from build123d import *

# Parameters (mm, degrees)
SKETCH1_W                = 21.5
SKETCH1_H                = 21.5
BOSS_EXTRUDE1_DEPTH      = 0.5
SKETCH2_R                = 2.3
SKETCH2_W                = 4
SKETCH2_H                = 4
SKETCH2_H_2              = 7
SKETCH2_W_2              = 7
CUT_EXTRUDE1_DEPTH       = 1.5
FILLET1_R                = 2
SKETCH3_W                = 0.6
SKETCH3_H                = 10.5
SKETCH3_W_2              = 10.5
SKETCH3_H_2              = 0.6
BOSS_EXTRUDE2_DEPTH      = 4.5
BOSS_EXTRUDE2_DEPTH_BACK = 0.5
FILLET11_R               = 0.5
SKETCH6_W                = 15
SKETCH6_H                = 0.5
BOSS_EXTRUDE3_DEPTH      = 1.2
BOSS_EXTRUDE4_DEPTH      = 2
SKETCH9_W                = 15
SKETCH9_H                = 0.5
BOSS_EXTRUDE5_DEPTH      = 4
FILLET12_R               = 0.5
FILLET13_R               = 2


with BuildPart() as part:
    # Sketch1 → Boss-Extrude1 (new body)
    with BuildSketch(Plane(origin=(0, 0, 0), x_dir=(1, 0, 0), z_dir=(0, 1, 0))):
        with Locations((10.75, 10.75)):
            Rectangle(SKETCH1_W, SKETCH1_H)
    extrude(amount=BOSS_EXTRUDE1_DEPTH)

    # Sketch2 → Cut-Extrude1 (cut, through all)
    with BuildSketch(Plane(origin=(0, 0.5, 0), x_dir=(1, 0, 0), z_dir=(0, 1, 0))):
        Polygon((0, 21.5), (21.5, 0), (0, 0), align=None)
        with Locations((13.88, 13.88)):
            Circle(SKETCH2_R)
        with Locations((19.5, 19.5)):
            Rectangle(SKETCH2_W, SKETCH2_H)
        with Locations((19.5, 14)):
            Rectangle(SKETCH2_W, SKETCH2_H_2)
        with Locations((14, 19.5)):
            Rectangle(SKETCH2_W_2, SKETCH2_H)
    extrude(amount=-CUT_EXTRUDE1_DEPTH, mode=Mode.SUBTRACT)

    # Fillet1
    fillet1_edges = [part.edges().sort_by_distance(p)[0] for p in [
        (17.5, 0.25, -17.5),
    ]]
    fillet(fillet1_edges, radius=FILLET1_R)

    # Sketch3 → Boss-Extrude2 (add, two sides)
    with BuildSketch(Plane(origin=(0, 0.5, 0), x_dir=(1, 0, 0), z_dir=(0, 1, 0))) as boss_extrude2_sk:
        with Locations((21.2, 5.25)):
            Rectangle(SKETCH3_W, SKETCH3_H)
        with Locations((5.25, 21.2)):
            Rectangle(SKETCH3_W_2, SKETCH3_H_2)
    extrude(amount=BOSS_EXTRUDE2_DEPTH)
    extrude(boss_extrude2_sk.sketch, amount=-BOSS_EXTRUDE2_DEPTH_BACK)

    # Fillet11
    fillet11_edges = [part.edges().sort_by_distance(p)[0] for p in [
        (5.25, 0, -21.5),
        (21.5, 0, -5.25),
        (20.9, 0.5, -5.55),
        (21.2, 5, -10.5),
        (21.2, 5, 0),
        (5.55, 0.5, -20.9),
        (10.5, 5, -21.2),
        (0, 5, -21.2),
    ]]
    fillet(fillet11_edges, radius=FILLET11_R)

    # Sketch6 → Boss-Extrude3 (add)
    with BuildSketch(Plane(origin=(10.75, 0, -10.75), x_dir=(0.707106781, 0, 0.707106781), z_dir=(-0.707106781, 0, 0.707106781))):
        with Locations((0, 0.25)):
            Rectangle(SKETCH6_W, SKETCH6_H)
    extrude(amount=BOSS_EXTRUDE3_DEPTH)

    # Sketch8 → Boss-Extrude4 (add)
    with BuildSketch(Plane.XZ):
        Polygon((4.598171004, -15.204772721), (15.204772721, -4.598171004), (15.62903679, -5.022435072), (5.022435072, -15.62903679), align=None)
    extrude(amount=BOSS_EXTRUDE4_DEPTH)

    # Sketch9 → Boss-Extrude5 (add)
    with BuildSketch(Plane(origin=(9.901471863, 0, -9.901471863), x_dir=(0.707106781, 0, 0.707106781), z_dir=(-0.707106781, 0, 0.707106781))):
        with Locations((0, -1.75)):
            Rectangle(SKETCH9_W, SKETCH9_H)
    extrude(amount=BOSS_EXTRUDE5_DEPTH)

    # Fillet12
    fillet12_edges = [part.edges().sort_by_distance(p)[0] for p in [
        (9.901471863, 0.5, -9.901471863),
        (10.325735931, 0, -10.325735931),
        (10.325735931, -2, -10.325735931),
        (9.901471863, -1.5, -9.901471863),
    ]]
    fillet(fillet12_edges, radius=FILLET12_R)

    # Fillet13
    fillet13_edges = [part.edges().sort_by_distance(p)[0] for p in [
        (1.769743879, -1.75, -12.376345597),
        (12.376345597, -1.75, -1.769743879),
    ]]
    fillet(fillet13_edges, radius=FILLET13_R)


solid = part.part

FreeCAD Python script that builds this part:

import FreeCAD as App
import Part
import Sketcher
Q = App.Units.Quantity


def edges_at(feature, points):
    """Names of the edges that pass closest to the given points."""
    edges = feature.Shape.Edges
    near = lambda p: min(range(len(edges)), key=lambda i: edges[i].distToShape(Part.Vertex(*p))[0])
    return sorted({f"Edge{near(p) + 1}" for p in points})


def add_polygon(sketch, points):
    """Adds a closed chain of lines whose ends are joined by coincident constraints."""
    first, n = sketch.GeometryCount, len(points)
    for a, b in zip(points, points[1:] + points[:1]):
        sketch.addGeometry(Part.LineSegment(App.Vector(*a, 0), App.Vector(*b, 0)), False)
    for i in range(n):
        sketch.addConstraint(Sketcher.Constraint("Coincident", first + i, 2, first + (i + 1) % n, 1))

doc = App.newDocument("Part")
body = doc.addObject("PartDesign::Body", "Body")

# Sketch on XZ plane
sketch1 = body.newObject("Sketcher::SketchObject", "Sketch")
sketch1.AttachmentSupport = (doc.getObject("XZ_Plane"), [""])
sketch1.MapMode = "FlatFace"
add_polygon(sketch1, [(0, -22), (0, 0), (22, 0), (22, -22)])  # lines 0-3
sketch1.addConstraint([
    Sketcher.Constraint("Vertical", 0),
    Sketcher.Constraint("Horizontal", 1),
    Sketcher.Constraint("Vertical", 2),
    Sketcher.Constraint("Horizontal", 3),
    Sketcher.Constraint("Coincident", 0, 2, -1, 1),
    Sketcher.Constraint("Equal", 3, 0),
    Sketcher.Constraint("DistanceX", 1, 1, 1, 2, 21.5),
])
pad1 = body.newObject("PartDesign::Pad", "Pad")
pad1.Profile = sketch1
pad1.Length = 0.5
pad1.Reversed = True

# Sketch on XZ plane
sketch2 = body.newObject("Sketcher::SketchObject", "Sketch001")
sketch2.AttachmentSupport = (doc.getObject("XZ_Plane"), [""])
sketch2.MapMode = "FlatFace"
sketch2.AttachmentOffset = App.Placement(App.Vector(0, 0, -0.5), App.Rotation())
add_polygon(sketch2, [(21.5, 0), (0, -21.5), (0, 0)])  # lines 0-2
sketch2.addGeometry(Part.Circle(App.Vector(13.9, -13.9, 0), App.Vector(0, 0, 1), 2.3), False)  # 3
add_polygon(sketch2, [(17.5, -17.5), (17.5, -10.5), (21.5, -10.5), (21.5, -21.5), (10.5, -21.5), (10.5, -17.5)])  # lines 4-9
sketch2.addConstraint([
    Sketcher.Constraint("Vertical", 1),
    Sketcher.Constraint("Horizontal", 2),
    Sketcher.Constraint("Vertical", 4),
    Sketcher.Constraint("Horizontal", 5),
    Sketcher.Constraint("Vertical", 6),
    Sketcher.Constraint("Horizontal", 7),
    Sketcher.Constraint("Vertical", 8),
    Sketcher.Constraint("Horizontal", 9),
    Sketcher.Constraint("Coincident", 1, 2, -1, 1),
    Sketcher.Constraint("Horizontal", 0, 2, 6, 2),
    Sketcher.Constraint("Vertical", 2, 2, 5, 2),
    Sketcher.Constraint("Equal", 2, 1),
    Sketcher.Constraint("Equal", 9, 4),
    Sketcher.Constraint("Equal", 7, 6),
    Sketcher.Constraint("Diameter", 3, 4.6),
    Sketcher.Constraint("DistanceX", 5, 1, 5, 2, 4.0),
    Sketcher.Constraint("DistanceX", 7, 2, 7, 1, 11.0),
    Sketcher.Constraint("DistanceX", 2, 1, 2, 2, 21.5),
    Sketcher.Constraint("DistanceX", -1, 1, 3, 3, 13.88),
    Sketcher.Constraint("DistanceY", 3, 3, -1, 1, 13.88),
])
pocket1 = body.newObject("PartDesign::Pocket", "Pocket")
pocket1.Profile = sketch2
pocket1.Type = "ThroughAll"
pocket1.Reversed = True
doc.recompute()

fillet = body.newObject("PartDesign::Fillet", "Fillet")
fillet.Base = (pocket1, edges_at(pocket1, [(17.5, 0.25, -17.5)]))
fillet.Radius = 2

# Sketch on XZ plane
sketch3 = body.newObject("Sketcher::SketchObject", "Sketch002")
sketch3.AttachmentSupport = (doc.getObject("XZ_Plane"), [""])
sketch3.MapMode = "FlatFace"
sketch3.AttachmentOffset = App.Placement(App.Vector(0, 0, -0.5), App.Rotation())
add_polygon(sketch3, [(20.9, -10.5), (20.9, 0), (21.5, 0), (21.5, -10.5)])  # lines 0-3
add_polygon(sketch3, [(0, -21.5), (0, -20.9), (10.5, -20.9), (10.5, -21.5)])  # lines 4-7
sketch3.addConstraint([
    Sketcher.Constraint("Vertical", 0),
    Sketcher.Constraint("Horizontal", 1),
    Sketcher.Constraint("Vertical", 2),
    Sketcher.Constraint("Horizontal", 3),
    Sketcher.Constraint("Vertical", 4),
    Sketcher.Constraint("Horizontal", 5),
    Sketcher.Constraint("Vertical", 6),
    Sketcher.Constraint("Horizontal", 7),
    Sketcher.Constraint("PointOnObject", 0, 2, -1),
    Sketcher.Constraint("PointOnObject", 4, 2, -2),
    Sketcher.Constraint("Equal", 7, 0),
    Sketcher.Constraint("Equal", 3, 4),
    Sketcher.Constraint("DistanceX", 1, 1, 1, 2, 0.6),
    Sketcher.Constraint("DistanceX", 5, 1, 5, 2, 10.5),
    Sketcher.Constraint("DistanceX", 5, 2, 2, 2, 11.0),
    Sketcher.Constraint("DistanceY", 6, 2, 3, 2, 11.0),
])
pad2 = body.newObject("PartDesign::Pad", "Pad001")
pad2.Profile = sketch3
pad2.Type = "TwoLengths"
pad2.Length = 4.5
pad2.Length2 = 0.5
pad2.Reversed = True
doc.recompute()

fillet2 = body.newObject("PartDesign::Fillet", "Fillet001")
fillet2.Base = (pad2, edges_at(pad2, [
    (5.25, 0, -21.5),
    (21.5, 0, -5.25),
    (20.9, 0.5, -5.55),
    (21.2, 5, -10.5),
    (21.2, 5, 0),
    (5.55, 0.5, -20.9),
    (10.5, 5, -21.2),
    (0, 5, -21.2),
]))
fillet2.Radius = 0.5

# Sketch on an angled plane
sketch4 = body.newObject("Sketcher::SketchObject", "Sketch003")
sketch4.Placement = App.Placement(App.Vector(10.75, 0, -10.75), App.Rotation(App.Vector(0.707106781, 0, 0.707106781), App.Vector(0, 0.999999999, 0), App.Vector(-0.707106781, 0, 0.707106781), "ZXY"))
add_polygon(sketch4, [(-7.5, 0.5), (-7.5, 0), (7.5, 0), (7.5, 0.5)])  # lines 0-3
sketch4.addConstraint([
    Sketcher.Constraint("Vertical", 0),
    Sketcher.Constraint("Horizontal", 1),
    Sketcher.Constraint("Vertical", 2),
    Sketcher.Constraint("Horizontal", 3),
    Sketcher.Constraint("Symmetric", 0, 2, 1, 2, -1, 1),
    Sketcher.Constraint("DistanceX", 1, 1, 1, 2, 15.0),
    Sketcher.Constraint("DistanceY", 0, 2, 0, 1, 0.5),
])
pad3 = body.newObject("PartDesign::Pad", "Pad002")
pad3.Profile = sketch4
pad3.Length = 1.2

# Sketch on XZ plane
sketch5 = body.newObject("Sketcher::SketchObject", "Sketch004")
sketch5.AttachmentSupport = (doc.getObject("XZ_Plane"), [""])
sketch5.MapMode = "FlatFace"
add_polygon(sketch5, [(15.2, -4.6), (4.6, -15.2), (5, -15.6), (15.6, -5)])  # lines 0-3
sketch5.addConstraint([
    Sketcher.Constraint("Perpendicular", 0, 1),
    Sketcher.Constraint("Perpendicular", 1, 2),
    Sketcher.Constraint("Perpendicular", 2, 3),
    Sketcher.Constraint("Angle", 0, Q("-135 deg")),
    Sketcher.Constraint("Distance", 0, 15.0),
    Sketcher.Constraint("Distance", 1, 0.6),
    Sketcher.Constraint("DistanceX", -1, 1, 0, 2, 4.598171),
    Sketcher.Constraint("DistanceY", 3, 2, -1, 1, 4.598171),
])
pad4 = body.newObject("PartDesign::Pad", "Pad003")
pad4.Profile = sketch5
pad4.Length = 2

# Sketch on an angled plane
sketch6 = body.newObject("Sketcher::SketchObject", "Sketch005")
sketch6.Placement = App.Placement(App.Vector(9.901472, 0, -9.901472), App.Rotation(App.Vector(0.707106781, 0, 0.707106781), App.Vector(0, 0.999999999, 0), App.Vector(-0.707106781, 0, 0.707106781), "ZXY"))
add_polygon(sketch6, [(-7.5, -1.5), (-7.5, -2), (7.5, -2), (7.5, -1.5)])  # lines 0-3
sketch6.addConstraint([
    Sketcher.Constraint("Vertical", 0),
    Sketcher.Constraint("Horizontal", 1),
    Sketcher.Constraint("Vertical", 2),
    Sketcher.Constraint("Horizontal", 3),
    Sketcher.Constraint("DistanceX", 1, 1, 1, 2, 15.0),
    Sketcher.Constraint("DistanceY", 0, 2, 0, 1, 0.5),
    Sketcher.Constraint("DistanceY", 0, 2, -1, 1, 2.0),
    Sketcher.Constraint("DistanceX", 0, 2, -1, 1, 7.5),
])
pad5 = body.newObject("PartDesign::Pad", "Pad004")
pad5.Profile = sketch6
pad5.Length = 4
doc.recompute()

fillet3 = body.newObject("PartDesign::Fillet", "Fillet002")
fillet3.Base = (pad5, edges_at(pad5, [
    (9.901, 0.5, -9.901),
    (10.326, 0, -10.326),
    (10.326, -2, -10.326),
    (9.901, -1.5, -9.901),
]))
fillet3.Radius = 0.5
doc.recompute()

fillet4 = body.newObject("PartDesign::Fillet", "Fillet003")
fillet4.Base = (fillet3, edges_at(fillet3, [(1.77, -1.75, -12.376), (12.376, -1.75, -1.77)]))
fillet4.Radius = 2

doc.recompute()
